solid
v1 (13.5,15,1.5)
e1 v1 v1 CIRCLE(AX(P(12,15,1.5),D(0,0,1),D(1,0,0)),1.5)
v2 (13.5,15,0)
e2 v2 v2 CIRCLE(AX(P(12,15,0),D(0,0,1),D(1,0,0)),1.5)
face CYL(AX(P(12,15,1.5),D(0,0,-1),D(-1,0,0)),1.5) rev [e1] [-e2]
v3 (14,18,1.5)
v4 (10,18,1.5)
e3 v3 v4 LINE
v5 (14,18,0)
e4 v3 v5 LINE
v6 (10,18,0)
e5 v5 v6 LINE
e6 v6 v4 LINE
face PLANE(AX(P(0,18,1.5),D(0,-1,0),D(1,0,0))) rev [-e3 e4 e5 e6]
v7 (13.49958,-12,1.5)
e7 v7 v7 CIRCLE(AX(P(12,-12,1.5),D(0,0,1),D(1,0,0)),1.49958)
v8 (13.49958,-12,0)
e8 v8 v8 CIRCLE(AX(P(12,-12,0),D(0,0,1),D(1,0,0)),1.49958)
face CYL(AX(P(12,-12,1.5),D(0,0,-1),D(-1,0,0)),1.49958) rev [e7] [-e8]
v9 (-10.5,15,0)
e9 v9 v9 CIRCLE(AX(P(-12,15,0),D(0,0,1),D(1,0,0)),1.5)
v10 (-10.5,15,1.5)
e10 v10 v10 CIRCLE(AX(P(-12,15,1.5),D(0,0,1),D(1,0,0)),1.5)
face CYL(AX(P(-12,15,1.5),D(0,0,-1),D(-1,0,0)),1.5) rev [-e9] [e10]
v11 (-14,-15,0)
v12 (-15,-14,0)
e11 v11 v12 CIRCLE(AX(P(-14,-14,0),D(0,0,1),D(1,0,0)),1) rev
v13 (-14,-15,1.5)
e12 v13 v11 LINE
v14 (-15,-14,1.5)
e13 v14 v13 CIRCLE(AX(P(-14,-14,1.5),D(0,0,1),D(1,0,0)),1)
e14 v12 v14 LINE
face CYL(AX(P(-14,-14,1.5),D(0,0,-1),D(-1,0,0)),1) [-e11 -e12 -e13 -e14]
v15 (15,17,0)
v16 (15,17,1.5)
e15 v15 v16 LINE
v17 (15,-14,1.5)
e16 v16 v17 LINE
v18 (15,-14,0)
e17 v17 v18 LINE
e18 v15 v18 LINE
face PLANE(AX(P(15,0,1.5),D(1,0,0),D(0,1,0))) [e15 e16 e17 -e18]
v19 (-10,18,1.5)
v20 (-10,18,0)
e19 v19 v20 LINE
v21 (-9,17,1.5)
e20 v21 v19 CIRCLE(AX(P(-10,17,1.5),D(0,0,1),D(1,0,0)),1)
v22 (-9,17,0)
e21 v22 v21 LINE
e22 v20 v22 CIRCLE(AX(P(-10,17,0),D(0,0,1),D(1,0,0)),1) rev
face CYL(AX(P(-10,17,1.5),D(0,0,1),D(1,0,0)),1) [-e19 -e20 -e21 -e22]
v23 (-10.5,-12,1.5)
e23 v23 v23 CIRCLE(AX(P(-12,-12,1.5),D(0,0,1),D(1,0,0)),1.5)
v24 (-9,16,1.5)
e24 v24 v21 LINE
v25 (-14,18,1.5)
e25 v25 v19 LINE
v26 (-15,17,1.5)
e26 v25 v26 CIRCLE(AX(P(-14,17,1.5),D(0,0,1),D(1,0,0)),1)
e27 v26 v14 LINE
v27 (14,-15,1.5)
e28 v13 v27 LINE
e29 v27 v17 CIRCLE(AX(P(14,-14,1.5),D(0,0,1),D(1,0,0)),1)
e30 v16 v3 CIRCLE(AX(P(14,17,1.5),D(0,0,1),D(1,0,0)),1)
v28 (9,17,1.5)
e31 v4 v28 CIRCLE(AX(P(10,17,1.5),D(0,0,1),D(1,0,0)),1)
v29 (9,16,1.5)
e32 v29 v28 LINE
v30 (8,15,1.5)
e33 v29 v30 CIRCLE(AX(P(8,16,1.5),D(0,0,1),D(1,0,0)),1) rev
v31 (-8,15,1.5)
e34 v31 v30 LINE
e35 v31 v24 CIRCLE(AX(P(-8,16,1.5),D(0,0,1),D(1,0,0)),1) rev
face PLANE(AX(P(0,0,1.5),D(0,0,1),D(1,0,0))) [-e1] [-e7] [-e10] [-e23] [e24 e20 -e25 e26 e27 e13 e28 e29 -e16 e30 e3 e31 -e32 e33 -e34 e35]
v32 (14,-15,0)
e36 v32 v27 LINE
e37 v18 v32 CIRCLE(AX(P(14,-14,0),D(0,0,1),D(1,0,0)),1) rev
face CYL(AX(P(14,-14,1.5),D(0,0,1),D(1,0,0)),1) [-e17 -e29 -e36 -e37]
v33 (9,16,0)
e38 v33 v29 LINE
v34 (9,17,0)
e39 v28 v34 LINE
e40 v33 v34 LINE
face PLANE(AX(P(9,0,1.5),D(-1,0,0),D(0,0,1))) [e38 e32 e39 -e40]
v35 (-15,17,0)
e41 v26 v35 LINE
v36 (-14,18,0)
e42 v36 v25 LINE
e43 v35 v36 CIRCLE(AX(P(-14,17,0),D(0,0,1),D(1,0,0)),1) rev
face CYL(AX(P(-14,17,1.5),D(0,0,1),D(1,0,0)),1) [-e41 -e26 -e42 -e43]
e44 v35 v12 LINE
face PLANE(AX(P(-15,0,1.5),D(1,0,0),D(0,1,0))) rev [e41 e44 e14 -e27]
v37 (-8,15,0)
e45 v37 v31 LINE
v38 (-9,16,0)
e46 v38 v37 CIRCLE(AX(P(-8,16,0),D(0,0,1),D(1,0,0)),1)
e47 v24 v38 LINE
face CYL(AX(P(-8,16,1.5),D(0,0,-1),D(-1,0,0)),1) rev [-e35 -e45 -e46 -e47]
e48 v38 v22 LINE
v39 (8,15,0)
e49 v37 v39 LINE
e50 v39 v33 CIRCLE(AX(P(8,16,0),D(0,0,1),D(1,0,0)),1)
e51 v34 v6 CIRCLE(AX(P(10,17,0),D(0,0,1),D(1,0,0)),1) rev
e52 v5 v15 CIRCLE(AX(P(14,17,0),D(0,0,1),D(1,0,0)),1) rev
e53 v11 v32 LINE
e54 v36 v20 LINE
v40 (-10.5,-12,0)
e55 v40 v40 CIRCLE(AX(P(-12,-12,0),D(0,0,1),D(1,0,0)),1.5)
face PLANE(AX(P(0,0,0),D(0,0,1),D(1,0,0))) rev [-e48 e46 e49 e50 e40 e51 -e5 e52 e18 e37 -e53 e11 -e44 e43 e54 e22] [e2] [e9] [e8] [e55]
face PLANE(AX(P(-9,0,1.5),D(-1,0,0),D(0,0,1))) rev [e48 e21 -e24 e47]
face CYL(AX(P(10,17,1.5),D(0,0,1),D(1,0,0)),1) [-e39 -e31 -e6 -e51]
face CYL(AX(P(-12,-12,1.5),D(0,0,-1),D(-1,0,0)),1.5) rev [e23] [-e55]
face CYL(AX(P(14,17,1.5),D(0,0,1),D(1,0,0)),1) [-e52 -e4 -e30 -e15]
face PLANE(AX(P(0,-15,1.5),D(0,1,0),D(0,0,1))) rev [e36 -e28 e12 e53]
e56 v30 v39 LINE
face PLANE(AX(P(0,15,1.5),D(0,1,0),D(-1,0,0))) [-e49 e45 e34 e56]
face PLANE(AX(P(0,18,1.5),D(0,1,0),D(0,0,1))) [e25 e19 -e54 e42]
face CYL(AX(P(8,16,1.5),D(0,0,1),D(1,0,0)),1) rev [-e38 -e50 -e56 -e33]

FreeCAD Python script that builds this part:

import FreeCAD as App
import Part
import Sketcher

V = App.Vector
Q = App.Units.Quantity


def edges_at(feature, points):
    """Names of the edges that pass closest to the given points."""
    edges = feature.Shape.Edges
    near = lambda p: min(range(len(edges)), key=lambda i: edges[i].distToShape(Part.Vertex(*p))[0])
    return sorted({f"Edge{near(p) + 1}" for p in points})

doc = App.newDocument("Part")
body = doc.addObject("PartDesign::Body", "Body")

# Sketch on XY plane
sketch1 = body.newObject("Sketcher::SketchObject", "Sketch")
sketch1.AttachmentSupport = (doc.getObject("XY_Plane"), [""])
sketch1.MapMode = "FlatFace"
sketch1.addGeometry(Part.LineSegment(V(-15, 18, 0), V(-15, -15, 0)), False)
sketch1.addGeometry(Part.LineSegment(V(-15, -15, 0), V(15, -15, 0)), False)
sketch1.addGeometry(Part.LineSegment(V(15, -15, 0), V(15, 18, 0)), False)
sketch1.addGeometry(Part.LineSegment(V(15, 18, 0), V(9, 18, 0)), False)
sketch1.addGeometry(Part.LineSegment(V(9, 18, 0), V(9, 15, 0)), False)
sketch1.addGeometry(Part.LineSegment(V(9, 15, 0), V(-9, 15, 0)), False)
sketch1.addGeometry(Part.LineSegment(V(-9, 15, 0), V(-9, 18, 0)), False)
sketch1.addGeometry(Part.LineSegment(V(-9, 18, 0), V(-15, 18, 0)), False)
sketch1.addGeometry(Part.Circle(V(-12, -12, 0), V(0, 0, 1), 1.5), False)
sketch1.addGeometry(Part.Circle(V(12, -12, 0), V(0, 0, 1), 1.5), False)
sketch1.addGeometry(Part.Circle(V(-12, 15, 0), V(0, 0, 1), 1.5), False)
sketch1.addGeometry(Part.Circle(V(12, 15, 0), V(0, 0, 1), 1.5), False)
sketch1.addConstraint(Sketcher.Constraint("Coincident", 0, 2, 1, 1))
sketch1.addConstraint(Sketcher.Constraint("Coincident", 1, 2, 2, 1))
sketch1.addConstraint(Sketcher.Constraint("Coincident", 2, 2, 3, 1))
sketch1.addConstraint(Sketcher.Constraint("Coincident", 3, 2, 4, 1))
sketch1.addConstraint(Sketcher.Constraint("Coincident", 4, 2, 5, 1))
sketch1.addConstraint(Sketcher.Constraint("Coincident", 5, 2, 6, 1))
sketch1.addConstraint(Sketcher.Constraint("Coincident", 6, 2, 7, 1))
sketch1.addConstraint(Sketcher.Constraint("Coincident", 7, 2, 0, 1))
sketch1.addConstraint(Sketcher.Constraint("Vertical", 0))
sketch1.addConstraint(Sketcher.Constraint("Horizontal", 1))
sketch1.addConstraint(Sketcher.Constraint("Vertical", 2))
sketch1.addConstraint(Sketcher.Constraint("Horizontal", 3))
sketch1.addConstraint(Sketcher.Constraint("Vertical", 4))
sketch1.addConstraint(Sketcher.Constraint("Horizontal", 5))
sketch1.addConstraint(Sketcher.Constraint("Vertical", 6))
sketch1.addConstraint(Sketcher.Constraint("Horizontal", 7))
sketch1.addConstraint(Sketcher.Constraint("Equal", 8, 10))
sketch1.addConstraint(Sketcher.Constraint("Equal", 10, 11))
sketch1.addConstraint(Sketcher.Constraint("Symmetric", 8, 3, 9, 3, -2))
sketch1.addConstraint(Sketcher.Constraint("Symmetric", 10, 3, 11, 3, -2))
sketch1.addConstraint(Sketcher.Constraint("Symmetric", 3, 2, 6, 2, -2))
sketch1.addConstraint(Sketcher.Constraint("Horizontal", 11, 3, 4, 2))
sketch1.addConstraint(Sketcher.Constraint("Vertical", 8, 3, 10, 3))
sketch1.addConstraint(Sketcher.Constraint("Equal", 3, 7))
sketch1.addConstraint(Sketcher.Constraint("Diameter", 8, Q("3 mm")))
sketch1.addConstraint(Sketcher.Constraint("DistanceX", 1, 1, 1, 2, Q("30 mm")))
sketch1.addConstraint(Sketcher.Constraint("DistanceX", 3, 2, 3, 1, Q("6 mm")))
sketch1.addConstraint(Sketcher.Constraint("DistanceY", 0, 2, 0, 1, Q("33 mm")))
sketch1.addConstraint(Sketcher.Constraint("DistanceY", 4, 2, 4, 1, Q("3 mm")))
sketch1.addConstraint(Sketcher.Constraint("DistanceX", 8, 3, -1, 1, Q("12 mm")))
sketch1.addConstraint(Sketcher.Constraint("DistanceY", 8, 3, -1, 1, Q("12 mm")))
sketch1.addConstraint(Sketcher.Constraint("DistanceY", -1, 1, 10, 3, Q("15 mm")))
sketch1.addConstraint(Sketcher.Constraint("Diameter", 9, Q("2.99916 mm")))
pad1 = body.newObject("PartDesign::Pad", "Pad")
pad1.Profile = sketch1
pad1.Length = 1.5
doc.recompute()

fillet = body.newObject("PartDesign::Fillet", "Fillet")
fillet.Base = (pad1, edges_at(pad1, [
    (9, 15, 0.75),
    (9, 18, 0.75),
    (15, 18, 0.75),
    (15, -15, 0.75),
    (-15, -15, 0.75),
    (-15, 18, 0.75),
    (-9, 18, 0.75),
    (-9, 15, 0.75),
]))
fillet.Radius = 1

doc.recompute()
